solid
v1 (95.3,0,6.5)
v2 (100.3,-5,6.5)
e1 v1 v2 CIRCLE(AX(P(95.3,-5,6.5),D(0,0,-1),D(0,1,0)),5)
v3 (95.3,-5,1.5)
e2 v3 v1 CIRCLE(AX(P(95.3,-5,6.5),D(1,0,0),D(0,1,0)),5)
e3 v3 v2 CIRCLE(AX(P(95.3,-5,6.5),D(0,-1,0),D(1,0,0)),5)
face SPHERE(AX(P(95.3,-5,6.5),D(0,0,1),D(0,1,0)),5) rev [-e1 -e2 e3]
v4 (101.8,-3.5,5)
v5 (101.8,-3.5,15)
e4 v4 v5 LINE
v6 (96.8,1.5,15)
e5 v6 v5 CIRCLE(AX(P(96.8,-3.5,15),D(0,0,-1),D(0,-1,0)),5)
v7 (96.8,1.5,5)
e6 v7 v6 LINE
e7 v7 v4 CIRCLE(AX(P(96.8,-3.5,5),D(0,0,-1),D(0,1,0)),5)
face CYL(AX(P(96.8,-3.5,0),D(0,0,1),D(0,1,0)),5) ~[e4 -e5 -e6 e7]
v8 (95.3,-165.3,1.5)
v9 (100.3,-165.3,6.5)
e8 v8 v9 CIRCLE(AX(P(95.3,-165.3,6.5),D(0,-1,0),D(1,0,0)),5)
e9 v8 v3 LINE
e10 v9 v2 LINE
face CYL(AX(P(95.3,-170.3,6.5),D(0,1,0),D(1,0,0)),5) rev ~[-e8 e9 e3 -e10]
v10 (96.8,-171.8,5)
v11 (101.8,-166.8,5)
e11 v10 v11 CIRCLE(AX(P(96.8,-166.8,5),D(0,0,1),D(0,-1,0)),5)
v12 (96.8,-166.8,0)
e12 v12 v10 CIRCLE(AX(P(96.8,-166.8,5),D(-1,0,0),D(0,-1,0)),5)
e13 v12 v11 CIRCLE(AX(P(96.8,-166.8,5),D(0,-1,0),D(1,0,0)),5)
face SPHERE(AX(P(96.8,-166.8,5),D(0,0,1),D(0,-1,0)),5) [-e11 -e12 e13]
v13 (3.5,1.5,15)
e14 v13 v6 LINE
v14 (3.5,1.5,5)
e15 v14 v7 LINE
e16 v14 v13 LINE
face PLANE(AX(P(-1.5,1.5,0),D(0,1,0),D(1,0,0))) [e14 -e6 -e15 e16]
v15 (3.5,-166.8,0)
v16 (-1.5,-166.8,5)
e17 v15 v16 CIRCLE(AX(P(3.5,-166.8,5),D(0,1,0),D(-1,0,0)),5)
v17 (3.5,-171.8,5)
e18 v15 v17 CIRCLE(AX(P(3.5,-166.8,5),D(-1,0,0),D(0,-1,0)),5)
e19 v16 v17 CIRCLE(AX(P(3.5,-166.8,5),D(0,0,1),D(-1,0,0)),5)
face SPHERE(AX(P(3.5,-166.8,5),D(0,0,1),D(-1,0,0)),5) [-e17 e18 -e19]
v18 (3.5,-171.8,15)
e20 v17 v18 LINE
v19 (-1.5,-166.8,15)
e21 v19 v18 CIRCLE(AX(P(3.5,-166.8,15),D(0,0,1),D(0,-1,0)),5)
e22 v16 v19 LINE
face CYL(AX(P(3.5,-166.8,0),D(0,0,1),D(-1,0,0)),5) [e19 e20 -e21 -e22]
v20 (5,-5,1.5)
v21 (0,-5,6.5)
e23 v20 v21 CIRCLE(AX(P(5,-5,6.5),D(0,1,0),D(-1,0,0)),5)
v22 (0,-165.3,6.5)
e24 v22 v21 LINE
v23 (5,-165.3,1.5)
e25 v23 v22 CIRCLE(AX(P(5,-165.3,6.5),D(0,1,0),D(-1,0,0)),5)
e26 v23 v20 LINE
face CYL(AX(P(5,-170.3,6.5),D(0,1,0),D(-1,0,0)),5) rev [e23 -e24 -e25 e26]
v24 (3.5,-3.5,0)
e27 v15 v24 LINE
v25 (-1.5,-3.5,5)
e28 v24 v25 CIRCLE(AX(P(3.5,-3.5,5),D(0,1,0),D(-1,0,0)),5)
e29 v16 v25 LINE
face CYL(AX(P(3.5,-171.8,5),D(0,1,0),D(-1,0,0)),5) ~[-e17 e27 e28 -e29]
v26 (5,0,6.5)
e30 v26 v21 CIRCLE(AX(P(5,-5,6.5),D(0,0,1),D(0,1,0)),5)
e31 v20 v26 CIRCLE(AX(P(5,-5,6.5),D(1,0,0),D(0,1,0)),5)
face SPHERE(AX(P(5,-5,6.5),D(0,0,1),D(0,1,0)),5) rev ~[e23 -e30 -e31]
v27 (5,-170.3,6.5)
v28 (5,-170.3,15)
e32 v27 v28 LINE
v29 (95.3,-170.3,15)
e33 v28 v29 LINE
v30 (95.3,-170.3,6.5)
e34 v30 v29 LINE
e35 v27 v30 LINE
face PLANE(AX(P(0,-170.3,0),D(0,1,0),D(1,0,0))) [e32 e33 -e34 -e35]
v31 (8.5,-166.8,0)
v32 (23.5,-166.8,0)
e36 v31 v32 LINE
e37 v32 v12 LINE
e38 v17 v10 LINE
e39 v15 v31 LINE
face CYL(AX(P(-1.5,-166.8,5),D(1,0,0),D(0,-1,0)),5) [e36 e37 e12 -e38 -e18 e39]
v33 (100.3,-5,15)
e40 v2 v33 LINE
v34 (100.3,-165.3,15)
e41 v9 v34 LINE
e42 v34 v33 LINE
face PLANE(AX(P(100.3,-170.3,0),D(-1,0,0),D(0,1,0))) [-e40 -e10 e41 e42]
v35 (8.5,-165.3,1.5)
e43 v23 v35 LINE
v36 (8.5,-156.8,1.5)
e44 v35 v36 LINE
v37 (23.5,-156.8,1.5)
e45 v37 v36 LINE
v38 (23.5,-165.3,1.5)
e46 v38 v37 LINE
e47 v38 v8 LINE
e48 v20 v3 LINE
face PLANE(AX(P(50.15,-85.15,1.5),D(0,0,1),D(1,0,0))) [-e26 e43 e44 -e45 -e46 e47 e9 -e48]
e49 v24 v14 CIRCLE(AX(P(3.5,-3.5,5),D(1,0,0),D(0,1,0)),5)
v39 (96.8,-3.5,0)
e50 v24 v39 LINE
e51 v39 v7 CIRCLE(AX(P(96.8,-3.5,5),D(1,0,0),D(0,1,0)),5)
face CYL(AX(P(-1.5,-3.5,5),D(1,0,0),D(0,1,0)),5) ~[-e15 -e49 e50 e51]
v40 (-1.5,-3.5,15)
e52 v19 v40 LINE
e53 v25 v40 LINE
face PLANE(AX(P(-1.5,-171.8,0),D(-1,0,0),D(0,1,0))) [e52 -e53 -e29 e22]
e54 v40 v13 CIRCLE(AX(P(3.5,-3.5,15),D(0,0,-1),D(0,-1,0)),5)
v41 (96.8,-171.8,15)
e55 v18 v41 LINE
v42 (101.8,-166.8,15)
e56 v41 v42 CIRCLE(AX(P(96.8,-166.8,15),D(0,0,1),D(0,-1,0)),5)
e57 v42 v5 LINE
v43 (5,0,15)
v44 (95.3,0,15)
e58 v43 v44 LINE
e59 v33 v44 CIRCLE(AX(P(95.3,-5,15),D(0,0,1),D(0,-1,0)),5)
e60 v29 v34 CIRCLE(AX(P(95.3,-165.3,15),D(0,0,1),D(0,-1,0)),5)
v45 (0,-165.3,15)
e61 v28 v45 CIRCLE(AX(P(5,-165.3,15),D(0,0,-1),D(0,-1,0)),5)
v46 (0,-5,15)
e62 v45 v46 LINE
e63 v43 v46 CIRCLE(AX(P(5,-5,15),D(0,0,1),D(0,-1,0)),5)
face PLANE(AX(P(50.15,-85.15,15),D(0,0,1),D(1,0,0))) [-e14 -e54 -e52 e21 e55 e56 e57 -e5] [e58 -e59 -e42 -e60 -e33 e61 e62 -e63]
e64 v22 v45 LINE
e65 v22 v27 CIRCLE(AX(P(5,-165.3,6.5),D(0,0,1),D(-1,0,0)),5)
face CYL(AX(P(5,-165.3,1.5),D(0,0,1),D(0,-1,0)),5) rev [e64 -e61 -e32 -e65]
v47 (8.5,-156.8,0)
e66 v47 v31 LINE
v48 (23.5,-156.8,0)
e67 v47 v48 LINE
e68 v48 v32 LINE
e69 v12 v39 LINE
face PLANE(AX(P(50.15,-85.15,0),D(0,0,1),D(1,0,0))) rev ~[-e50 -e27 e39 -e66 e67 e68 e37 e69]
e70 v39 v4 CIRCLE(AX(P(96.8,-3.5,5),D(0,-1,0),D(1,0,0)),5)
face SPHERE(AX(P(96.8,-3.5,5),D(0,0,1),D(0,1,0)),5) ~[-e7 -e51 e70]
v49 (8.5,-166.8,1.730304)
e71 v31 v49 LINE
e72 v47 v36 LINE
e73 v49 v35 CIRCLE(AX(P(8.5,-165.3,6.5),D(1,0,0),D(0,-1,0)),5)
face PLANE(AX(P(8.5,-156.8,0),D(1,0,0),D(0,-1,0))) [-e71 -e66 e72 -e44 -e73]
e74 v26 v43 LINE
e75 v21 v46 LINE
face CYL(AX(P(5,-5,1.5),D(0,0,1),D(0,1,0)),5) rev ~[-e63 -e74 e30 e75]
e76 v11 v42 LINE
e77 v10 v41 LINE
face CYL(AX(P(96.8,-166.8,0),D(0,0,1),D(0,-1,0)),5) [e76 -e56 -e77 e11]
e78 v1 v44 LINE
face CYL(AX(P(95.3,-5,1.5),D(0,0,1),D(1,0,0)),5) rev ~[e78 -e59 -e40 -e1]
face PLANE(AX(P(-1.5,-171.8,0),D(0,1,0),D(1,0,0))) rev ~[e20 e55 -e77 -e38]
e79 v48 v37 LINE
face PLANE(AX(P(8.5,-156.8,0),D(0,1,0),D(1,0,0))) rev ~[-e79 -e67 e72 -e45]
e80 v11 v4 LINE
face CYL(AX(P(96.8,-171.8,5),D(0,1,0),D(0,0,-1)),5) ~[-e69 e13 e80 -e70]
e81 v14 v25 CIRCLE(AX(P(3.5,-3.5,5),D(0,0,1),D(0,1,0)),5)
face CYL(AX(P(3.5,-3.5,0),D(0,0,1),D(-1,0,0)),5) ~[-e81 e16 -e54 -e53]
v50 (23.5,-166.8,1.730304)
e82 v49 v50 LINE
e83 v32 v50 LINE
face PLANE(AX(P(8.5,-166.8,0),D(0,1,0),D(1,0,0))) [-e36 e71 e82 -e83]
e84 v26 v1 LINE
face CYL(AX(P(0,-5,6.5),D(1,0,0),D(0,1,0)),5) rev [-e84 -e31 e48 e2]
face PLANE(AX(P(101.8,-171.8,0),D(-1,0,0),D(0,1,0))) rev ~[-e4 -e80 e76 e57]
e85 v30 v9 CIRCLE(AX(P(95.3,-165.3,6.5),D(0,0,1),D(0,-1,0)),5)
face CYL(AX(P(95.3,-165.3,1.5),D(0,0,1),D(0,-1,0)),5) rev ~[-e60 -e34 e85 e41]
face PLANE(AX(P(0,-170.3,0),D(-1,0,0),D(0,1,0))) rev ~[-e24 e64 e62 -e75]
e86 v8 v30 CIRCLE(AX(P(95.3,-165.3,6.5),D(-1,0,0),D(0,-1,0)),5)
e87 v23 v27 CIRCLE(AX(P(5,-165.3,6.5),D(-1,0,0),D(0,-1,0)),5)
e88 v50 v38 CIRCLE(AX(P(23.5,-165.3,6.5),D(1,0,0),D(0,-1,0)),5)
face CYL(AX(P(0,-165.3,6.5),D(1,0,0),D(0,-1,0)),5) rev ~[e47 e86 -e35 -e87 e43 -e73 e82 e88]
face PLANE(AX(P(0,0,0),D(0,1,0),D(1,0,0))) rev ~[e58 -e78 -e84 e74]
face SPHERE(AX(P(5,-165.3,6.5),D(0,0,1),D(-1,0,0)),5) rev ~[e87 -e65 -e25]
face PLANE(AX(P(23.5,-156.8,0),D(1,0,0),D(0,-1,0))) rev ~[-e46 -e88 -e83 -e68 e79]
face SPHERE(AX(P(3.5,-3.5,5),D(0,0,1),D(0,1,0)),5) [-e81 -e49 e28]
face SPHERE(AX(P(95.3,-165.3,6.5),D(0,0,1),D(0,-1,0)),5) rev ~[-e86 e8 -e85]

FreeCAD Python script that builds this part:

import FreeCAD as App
import Part
import Sketcher
from FreeCAD import Vector


def edges_at(feature, points):
    """Names of the edges that pass closest to the given points."""
    edges = feature.Shape.Edges
    near = lambda p: min(range(len(edges)), key=lambda i: edges[i].distToShape(Part.Vertex(*p))[0])
    return sorted({f"Edge{near(p) + 1}" for p in points})


def add_polygon(sketch, points):
    """Adds a closed chain of lines whose ends are joined by coincident constraints."""
    first, n = sketch.GeometryCount, len(points)
    for a, b in zip(points, points[1:] + points[:1]):
        sketch.addGeometry(Part.LineSegment(App.Vector(*a, 0), App.Vector(*b, 0)), False)
    for i in range(n):
        sketch.addConstraint(Sketcher.Constraint("Coincident", first + i, 2, first + (i + 1) % n, 1))

doc = App.newDocument("Part")
body = doc.addObject("PartDesign::Body", "Body")

sketch1 = body.newObject("Sketcher::SketchObject", "Sketch")
sketch1.AttachmentSupport = (doc.getObject("XY_Plane"), [""])
sketch1.MapMode = "FlatFace"
add_polygon(sketch1, [(0, 0), (0, -170), (100, -170), (100, 0)])
sketch1.addConstraint(Sketcher.Constraint("Vertical", 0))
sketch1.addConstraint(Sketcher.Constraint("Horizontal", 1))
sketch1.addConstraint(Sketcher.Constraint("Vertical", 2))
sketch1.addConstraint(Sketcher.Constraint("Horizontal", 3))
sketch1.addConstraint(Sketcher.Constraint("Coincident", 3, 2, -1, 1))
sketch1.addConstraint(Sketcher.Constraint("DistanceX", 1, 1, 1, 2, 100.3))
sketch1.addConstraint(Sketcher.Constraint("DistanceY", 0, 2, 0, 1, 170.3))
pad1 = body.newObject("PartDesign::Pad", "Pad")
pad1.Profile = sketch1
pad1.Length = 1.5

sketch2 = body.newObject("Sketcher::SketchObject", "Sketch001")
sketch2.AttachmentSupport = (doc.getObject("XY_Plane"), [""])
sketch2.MapMode = "FlatFace"
add_polygon(sketch2, [(-2, 2), (-2, -172), (102, -172), (102, 2)])
add_polygon(sketch2, [(100, -170), (0, -170), (0, 0), (100, 0)])
sketch2.addConstraint(Sketcher.Constraint("Vertical", 0))
sketch2.addConstraint(Sketcher.Constraint("Horizontal", 1))
sketch2.addConstraint(Sketcher.Constraint("Vertical", 2))
sketch2.addConstraint(Sketcher.Constraint("Horizontal", 3))
sketch2.addConstraint(Sketcher.Constraint("Horizontal", 4))
sketch2.addConstraint(Sketcher.Constraint("Vertical", 5))
sketch2.addConstraint(Sketcher.Constraint("Horizontal", 6))
sketch2.addConstraint(Sketcher.Constraint("Vertical", 7))
sketch2.addConstraint(Sketcher.Constraint("Coincident", 5, 2, -1, 1))
sketch2.addConstraint(Sketcher.Constraint("DistanceX", 1, 1, 1, 2, 103.3))
sketch2.addConstraint(Sketcher.Constraint("DistanceX", 4, 2, 4, 1, 100.3))
sketch2.addConstraint(Sketcher.Constraint("DistanceY", 0, 2, 0, 1, 173.3))
sketch2.addConstraint(Sketcher.Constraint("DistanceY", 5, 1, 5, 2, 170.3))
sketch2.addConstraint(Sketcher.Constraint("DistanceX", 0, 2, -1, 1, 1.5))
sketch2.addConstraint(Sketcher.Constraint("DistanceY", 0, 2, -1, 1, 171.8))
pad2 = body.newObject("PartDesign::Pad", "Pad001")
pad2.Profile = sketch2
pad2.Length = 15
doc.recompute()

fillet = body.newObject("PartDesign::Fillet", "Fillet")
fillet.Base = (pad2, edges_at(pad2, [
    (0, 0, 8.25),
    (101.8, 1.5, 7.5),
    (100.3, 0, 8.25),
    (-1.5, 1.5, 7.5),
    (100.3, -170.3, 8.25),
    (-1.5, -171.8, 7.5),
    (0, -170.3, 8.25),
    (101.8, -171.8, 7.5),
    (50.15, 1.5, 0),
    (-1.5, -85.15, 0),
    (50.15, -171.8, 0),
    (101.8, -85.15, 0),
    (50.15, 0, 1.5),
    (0, -85.15, 1.5),
    (50.15, -170.3, 1.5),
    (100.3, -85.15, 1.5),
]))
fillet.Radius = 5

sketch3 = body.newObject("Sketcher::SketchObject", "Sketch002")
sketch3.AttachmentSupport = (doc.getObject("XY_Plane"), [""])
sketch3.MapMode = "FlatFace"
add_polygon(sketch3, [(8, -167), (8, -157), (24, -157), (24, -167)])
sketch3.addConstraint(Sketcher.Constraint("Vertical", 0))
sketch3.addConstraint(Sketcher.Constraint("Horizontal", 1))
sketch3.addConstraint(Sketcher.Constraint("Vertical", 2))
sketch3.addConstraint(Sketcher.Constraint("Horizontal", 3))
sketch3.addConstraint(Sketcher.Constraint("DistanceX", 1, 1, 1, 2, 15.0))
sketch3.addConstraint(Sketcher.Constraint("DistanceY", 0, 1, 0, 2, 10.0))
sketch3.addConstraint(Sketcher.Constraint("DistanceX", -1, 1, 0, 2, 8.5))
sketch3.addConstraint(Sketcher.Constraint("DistanceY", 0, 2, -1, 1, 156.8))
pocket1 = body.newObject("PartDesign::Pocket", "Pocket")
pocket1.Profile = sketch3
pocket1.Length = 25
pocket1.Reversed = True

doc.recompute()
